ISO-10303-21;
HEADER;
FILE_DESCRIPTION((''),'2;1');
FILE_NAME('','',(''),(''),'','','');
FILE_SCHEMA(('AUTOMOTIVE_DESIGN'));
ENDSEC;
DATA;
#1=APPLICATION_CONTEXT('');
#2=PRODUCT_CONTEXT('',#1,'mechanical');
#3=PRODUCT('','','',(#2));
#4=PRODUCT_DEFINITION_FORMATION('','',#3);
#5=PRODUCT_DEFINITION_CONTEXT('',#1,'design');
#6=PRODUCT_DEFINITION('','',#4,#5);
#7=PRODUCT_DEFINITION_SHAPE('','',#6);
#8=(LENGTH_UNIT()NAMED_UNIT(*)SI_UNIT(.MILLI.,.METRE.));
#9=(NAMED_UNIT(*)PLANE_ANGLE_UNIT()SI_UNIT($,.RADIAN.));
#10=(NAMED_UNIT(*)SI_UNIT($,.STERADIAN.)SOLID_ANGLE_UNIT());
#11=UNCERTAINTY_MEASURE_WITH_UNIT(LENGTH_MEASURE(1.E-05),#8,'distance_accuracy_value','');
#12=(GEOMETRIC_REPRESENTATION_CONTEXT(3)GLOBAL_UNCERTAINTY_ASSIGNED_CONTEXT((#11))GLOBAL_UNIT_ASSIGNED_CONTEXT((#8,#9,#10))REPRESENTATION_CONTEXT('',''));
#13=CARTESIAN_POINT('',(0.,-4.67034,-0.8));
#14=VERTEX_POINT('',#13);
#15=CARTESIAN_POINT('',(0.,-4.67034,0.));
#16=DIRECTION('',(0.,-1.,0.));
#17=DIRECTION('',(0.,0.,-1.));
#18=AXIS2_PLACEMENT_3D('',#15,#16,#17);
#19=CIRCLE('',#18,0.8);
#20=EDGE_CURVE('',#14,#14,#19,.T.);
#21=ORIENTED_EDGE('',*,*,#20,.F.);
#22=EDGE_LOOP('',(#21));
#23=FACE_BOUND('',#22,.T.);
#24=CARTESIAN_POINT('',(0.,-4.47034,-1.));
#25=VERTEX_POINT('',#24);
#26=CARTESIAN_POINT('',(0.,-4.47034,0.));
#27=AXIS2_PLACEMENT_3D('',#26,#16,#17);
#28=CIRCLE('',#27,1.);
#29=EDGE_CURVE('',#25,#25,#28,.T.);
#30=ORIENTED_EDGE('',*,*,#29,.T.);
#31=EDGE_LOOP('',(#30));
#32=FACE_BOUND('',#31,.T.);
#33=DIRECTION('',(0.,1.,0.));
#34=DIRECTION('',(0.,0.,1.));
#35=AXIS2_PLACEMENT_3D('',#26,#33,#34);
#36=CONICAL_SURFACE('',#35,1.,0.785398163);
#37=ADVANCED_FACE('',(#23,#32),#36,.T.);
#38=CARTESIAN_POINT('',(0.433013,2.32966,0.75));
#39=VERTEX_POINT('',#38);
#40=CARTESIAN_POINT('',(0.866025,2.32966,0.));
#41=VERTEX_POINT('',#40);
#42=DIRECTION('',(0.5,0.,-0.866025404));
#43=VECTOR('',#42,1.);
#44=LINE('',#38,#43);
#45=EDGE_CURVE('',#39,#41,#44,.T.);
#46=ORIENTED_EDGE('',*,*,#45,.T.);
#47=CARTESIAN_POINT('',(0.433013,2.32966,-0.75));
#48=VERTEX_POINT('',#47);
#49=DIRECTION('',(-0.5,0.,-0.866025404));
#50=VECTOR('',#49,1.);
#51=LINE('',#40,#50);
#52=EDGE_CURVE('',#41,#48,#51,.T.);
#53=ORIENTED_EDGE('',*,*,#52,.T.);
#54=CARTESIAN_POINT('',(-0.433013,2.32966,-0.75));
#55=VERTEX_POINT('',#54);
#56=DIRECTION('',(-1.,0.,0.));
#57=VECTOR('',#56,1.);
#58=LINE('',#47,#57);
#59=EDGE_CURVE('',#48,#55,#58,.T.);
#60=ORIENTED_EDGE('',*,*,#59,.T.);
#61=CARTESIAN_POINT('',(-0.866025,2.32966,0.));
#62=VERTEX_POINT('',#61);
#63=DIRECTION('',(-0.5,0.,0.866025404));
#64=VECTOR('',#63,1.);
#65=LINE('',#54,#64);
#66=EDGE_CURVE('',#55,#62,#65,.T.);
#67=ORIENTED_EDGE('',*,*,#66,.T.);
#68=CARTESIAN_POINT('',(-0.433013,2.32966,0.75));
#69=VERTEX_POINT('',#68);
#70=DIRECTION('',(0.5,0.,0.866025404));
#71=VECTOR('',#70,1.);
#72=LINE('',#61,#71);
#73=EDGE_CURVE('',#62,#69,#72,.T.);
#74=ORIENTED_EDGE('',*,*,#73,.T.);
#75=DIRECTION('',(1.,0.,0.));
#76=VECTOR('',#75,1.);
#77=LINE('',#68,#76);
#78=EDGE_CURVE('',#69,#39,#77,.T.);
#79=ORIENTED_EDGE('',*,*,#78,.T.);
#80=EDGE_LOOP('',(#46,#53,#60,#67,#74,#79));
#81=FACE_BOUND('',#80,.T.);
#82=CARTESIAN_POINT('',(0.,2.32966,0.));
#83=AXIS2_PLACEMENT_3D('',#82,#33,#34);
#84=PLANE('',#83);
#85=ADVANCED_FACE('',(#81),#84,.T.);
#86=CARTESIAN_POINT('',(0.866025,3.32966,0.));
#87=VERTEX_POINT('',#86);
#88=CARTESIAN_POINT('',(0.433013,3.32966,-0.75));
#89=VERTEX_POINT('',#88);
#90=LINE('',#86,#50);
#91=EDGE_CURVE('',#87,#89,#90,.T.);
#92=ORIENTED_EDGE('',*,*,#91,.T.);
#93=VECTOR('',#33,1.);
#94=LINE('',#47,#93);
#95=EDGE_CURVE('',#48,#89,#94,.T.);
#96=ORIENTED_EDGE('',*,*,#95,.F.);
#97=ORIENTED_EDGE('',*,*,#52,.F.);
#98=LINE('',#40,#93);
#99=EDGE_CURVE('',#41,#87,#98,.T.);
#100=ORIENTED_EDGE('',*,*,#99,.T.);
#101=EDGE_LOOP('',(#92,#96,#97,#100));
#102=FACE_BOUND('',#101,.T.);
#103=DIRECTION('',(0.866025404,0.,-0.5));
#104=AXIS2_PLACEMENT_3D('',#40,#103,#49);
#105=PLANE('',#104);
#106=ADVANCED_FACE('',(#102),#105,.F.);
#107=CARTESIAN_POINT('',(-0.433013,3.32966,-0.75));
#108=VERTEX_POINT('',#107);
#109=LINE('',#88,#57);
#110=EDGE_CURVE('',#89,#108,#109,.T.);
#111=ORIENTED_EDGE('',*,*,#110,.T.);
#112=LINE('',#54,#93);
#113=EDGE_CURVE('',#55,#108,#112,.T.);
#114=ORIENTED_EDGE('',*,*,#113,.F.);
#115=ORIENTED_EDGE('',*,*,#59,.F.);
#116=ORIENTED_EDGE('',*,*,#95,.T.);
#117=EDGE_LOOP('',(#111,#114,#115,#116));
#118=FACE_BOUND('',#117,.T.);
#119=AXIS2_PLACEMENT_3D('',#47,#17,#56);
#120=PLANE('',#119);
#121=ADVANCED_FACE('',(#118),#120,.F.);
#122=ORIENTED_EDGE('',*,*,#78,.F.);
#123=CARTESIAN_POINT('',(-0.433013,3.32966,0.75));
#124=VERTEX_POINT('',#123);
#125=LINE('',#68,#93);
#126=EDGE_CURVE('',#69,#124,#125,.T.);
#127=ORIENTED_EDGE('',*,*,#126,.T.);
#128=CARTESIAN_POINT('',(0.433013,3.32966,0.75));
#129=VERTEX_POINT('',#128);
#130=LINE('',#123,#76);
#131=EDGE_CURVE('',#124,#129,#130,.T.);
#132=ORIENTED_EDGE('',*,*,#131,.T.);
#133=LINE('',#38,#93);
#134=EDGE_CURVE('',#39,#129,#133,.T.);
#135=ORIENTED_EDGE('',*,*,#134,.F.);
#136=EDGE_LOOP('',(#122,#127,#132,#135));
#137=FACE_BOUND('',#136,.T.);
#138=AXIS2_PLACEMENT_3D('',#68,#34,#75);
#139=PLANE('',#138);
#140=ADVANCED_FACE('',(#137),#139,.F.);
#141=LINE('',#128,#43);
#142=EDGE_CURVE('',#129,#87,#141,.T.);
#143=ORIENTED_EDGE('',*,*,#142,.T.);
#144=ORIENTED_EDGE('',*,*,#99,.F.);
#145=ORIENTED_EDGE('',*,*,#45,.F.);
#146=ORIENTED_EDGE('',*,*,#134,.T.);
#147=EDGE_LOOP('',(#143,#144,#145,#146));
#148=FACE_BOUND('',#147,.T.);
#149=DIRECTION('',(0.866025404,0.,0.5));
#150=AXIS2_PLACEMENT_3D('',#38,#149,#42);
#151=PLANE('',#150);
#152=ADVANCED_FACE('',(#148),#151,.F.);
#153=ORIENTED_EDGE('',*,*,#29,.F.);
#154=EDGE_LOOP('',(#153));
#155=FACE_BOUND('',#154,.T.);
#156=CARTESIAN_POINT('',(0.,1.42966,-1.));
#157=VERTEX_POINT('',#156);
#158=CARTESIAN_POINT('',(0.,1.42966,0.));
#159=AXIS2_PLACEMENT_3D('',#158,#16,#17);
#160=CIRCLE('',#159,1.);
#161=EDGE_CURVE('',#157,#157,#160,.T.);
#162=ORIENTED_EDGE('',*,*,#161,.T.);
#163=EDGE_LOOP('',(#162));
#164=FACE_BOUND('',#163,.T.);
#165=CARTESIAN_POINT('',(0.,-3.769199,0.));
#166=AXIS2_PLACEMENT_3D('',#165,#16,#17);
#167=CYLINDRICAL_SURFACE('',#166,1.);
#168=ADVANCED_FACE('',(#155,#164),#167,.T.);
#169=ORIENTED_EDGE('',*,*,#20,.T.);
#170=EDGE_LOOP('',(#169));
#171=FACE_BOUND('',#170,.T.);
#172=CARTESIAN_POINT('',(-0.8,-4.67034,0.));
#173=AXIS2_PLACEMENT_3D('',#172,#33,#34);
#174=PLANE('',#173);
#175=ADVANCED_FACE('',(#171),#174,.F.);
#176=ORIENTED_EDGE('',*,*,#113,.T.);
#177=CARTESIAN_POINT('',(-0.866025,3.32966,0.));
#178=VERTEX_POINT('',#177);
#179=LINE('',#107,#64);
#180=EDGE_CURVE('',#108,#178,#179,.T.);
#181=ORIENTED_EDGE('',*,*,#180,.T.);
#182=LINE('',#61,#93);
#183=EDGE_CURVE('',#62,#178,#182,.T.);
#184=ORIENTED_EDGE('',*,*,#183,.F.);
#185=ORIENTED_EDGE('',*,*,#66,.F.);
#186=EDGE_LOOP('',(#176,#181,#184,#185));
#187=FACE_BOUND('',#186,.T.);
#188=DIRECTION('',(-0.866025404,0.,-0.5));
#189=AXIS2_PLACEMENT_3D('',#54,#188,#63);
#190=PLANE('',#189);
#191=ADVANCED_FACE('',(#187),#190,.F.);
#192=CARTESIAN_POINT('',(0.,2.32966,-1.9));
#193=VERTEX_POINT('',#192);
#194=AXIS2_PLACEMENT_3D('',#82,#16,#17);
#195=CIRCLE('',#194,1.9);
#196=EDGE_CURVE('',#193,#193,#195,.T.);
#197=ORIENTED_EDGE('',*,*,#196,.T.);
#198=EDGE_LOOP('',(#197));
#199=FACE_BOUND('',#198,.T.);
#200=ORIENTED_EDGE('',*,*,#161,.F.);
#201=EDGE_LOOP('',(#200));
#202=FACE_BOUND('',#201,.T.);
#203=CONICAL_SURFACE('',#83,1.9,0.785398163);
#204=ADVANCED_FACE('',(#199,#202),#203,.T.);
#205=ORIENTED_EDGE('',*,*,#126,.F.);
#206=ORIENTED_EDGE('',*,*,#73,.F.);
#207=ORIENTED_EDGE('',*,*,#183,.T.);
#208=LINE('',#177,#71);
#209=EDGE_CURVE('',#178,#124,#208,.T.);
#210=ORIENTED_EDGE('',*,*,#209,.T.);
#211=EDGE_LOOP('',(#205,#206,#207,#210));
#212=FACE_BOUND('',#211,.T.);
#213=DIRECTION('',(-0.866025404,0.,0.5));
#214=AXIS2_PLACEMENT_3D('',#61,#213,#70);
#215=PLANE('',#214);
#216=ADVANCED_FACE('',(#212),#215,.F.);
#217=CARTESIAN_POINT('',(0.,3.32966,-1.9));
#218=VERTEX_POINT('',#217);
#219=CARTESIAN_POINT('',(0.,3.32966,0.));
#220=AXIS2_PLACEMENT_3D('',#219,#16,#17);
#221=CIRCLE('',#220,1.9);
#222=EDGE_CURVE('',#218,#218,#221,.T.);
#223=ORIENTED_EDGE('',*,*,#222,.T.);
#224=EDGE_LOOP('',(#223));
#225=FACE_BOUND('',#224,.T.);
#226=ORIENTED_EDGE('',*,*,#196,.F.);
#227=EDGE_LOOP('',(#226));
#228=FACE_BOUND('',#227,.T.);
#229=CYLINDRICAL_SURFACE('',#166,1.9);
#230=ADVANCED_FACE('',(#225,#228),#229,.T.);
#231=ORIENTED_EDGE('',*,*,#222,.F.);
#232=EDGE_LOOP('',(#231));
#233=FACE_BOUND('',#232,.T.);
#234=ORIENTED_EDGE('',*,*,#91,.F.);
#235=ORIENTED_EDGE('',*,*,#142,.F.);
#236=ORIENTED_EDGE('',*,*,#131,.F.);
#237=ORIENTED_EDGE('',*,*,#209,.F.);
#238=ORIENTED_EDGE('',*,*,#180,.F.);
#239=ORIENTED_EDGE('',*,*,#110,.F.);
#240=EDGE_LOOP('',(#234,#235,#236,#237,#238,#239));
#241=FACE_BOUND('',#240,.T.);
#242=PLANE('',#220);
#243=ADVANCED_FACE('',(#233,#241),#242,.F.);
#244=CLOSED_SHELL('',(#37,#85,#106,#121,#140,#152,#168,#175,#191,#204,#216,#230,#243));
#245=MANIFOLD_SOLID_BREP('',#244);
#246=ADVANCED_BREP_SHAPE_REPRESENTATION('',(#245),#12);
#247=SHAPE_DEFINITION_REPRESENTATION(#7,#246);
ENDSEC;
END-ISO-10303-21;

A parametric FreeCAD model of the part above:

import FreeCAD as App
import Part
import Sketcher
Q = App.Units.Quantity


def add_polygon(sketch, points):
    """Adds a closed chain of lines whose ends are joined by coincident constraints."""
    first, n = sketch.GeometryCount, len(points)
    for a, b in zip(points, points[1:] + points[:1]):
        sketch.addGeometry(Part.LineSegment(App.Vector(*a, 0), App.Vector(*b, 0)), False)
    for i in range(n):
        sketch.addConstraint(Sketcher.Constraint("Coincident", first + i, 2, first + (i + 1) % n, 1))

doc = App.newDocument("Part")
body = doc.addObject("PartDesign::Body", "Body")

# Sketch on XY plane
sketch1 = body.newObject("Sketcher::SketchObject", "Sketch")
sketch1.AttachmentSupport = (doc.getObject("XY_Plane"), [""])
sketch1.MapMode = "FlatFace"
add_polygon(sketch1, [(0, 3.33), (-1.9, 3.33), (-1.9, 2.33), (-1, 1.43), (-1, -4.47), (-0.8, -4.67), (0, -4.67)])  # lines 0-6
sketch1.addConstraint([
    Sketcher.Constraint("Horizontal", 0),
    Sketcher.Constraint("Vertical", 1),
    Sketcher.Constraint("Vertical", 3),
    Sketcher.Constraint("Horizontal", 5),
    Sketcher.Constraint("Vertical", 6),
    Sketcher.Constraint("PointOnObject", 5, 2, -2),
    Sketcher.Constraint("Parallel", 2, 4),
    Sketcher.Constraint("DistanceY", 1, 2, 1, 1, Q("1 mm")),
    Sketcher.Constraint("DistanceY", 6, 1, 6, 2, Q("8 mm")),
    Sketcher.Constraint("Angle", 2, Q("-45 deg")),
    Sketcher.Constraint("DistanceX", 0, 2, 0, 1, Q("1.9 mm")),
    Sketcher.Constraint("DistanceX", 5, 1, 5, 2, Q("0.8 mm")),
    Sketcher.Constraint("DistanceX", 2, 2, -1, 1, Q("1 mm")),
    Sketcher.Constraint("DistanceY", -1, 1, 0, 2, Q("3.32966 mm")),
])
revolution = body.newObject("PartDesign::Revolution", "Revolution")
revolution.Profile = sketch1
revolution.ReferenceAxis = (sketch1, ["V_Axis"])
revolution.Angle = 360

# Sketch on XZ plane
sketch2 = body.newObject("Sketcher::SketchObject", "Sketch001")
sketch2.AttachmentSupport = (doc.getObject("XZ_Plane"), [""])
sketch2.MapMode = "FlatFace"
sketch2.AttachmentOffset = App.Placement(App.Vector(0, 0, -3.32966), App.Rotation())
add_polygon(sketch2, [(-0.4, 0.8), (0.4, 0.8), (0.9, 0), (0.4, -0.8), (-0.4, -0.8), (-0.9, 0)])  # lines 0-5
sketch2.addConstraint([
    Sketcher.Constraint("Horizontal", 0),
    Sketcher.Constraint("Horizontal", 3),
    Sketcher.Constraint("Symmetric", 0, 2, 3, 2, -1, 1),
    Sketcher.Constraint("Symmetric", 1, 2, 4, 2, -1, 1),
    Sketcher.Constraint("PointOnObject", 1, 2, -1),
    Sketcher.Constraint("Parallel", 2, 5),
    Sketcher.Constraint("Vertical", 0, 2, 2, 2),
    Sketcher.Constraint("Angle", 1, Q("-60 deg")),
    Sketcher.Constraint("DistanceY", 2, 2, 0, 2, Q("1.5 mm")),
    Sketcher.Constraint("DistanceX", 0, 1, 0, 2, Q("0.866025 mm")),
])
pocket1 = body.newObject("PartDesign::Pocket", "Pocket")
pocket1.Profile = sketch2
pocket1.Length = 1
pocket1.Reversed = True

doc.recompute()
